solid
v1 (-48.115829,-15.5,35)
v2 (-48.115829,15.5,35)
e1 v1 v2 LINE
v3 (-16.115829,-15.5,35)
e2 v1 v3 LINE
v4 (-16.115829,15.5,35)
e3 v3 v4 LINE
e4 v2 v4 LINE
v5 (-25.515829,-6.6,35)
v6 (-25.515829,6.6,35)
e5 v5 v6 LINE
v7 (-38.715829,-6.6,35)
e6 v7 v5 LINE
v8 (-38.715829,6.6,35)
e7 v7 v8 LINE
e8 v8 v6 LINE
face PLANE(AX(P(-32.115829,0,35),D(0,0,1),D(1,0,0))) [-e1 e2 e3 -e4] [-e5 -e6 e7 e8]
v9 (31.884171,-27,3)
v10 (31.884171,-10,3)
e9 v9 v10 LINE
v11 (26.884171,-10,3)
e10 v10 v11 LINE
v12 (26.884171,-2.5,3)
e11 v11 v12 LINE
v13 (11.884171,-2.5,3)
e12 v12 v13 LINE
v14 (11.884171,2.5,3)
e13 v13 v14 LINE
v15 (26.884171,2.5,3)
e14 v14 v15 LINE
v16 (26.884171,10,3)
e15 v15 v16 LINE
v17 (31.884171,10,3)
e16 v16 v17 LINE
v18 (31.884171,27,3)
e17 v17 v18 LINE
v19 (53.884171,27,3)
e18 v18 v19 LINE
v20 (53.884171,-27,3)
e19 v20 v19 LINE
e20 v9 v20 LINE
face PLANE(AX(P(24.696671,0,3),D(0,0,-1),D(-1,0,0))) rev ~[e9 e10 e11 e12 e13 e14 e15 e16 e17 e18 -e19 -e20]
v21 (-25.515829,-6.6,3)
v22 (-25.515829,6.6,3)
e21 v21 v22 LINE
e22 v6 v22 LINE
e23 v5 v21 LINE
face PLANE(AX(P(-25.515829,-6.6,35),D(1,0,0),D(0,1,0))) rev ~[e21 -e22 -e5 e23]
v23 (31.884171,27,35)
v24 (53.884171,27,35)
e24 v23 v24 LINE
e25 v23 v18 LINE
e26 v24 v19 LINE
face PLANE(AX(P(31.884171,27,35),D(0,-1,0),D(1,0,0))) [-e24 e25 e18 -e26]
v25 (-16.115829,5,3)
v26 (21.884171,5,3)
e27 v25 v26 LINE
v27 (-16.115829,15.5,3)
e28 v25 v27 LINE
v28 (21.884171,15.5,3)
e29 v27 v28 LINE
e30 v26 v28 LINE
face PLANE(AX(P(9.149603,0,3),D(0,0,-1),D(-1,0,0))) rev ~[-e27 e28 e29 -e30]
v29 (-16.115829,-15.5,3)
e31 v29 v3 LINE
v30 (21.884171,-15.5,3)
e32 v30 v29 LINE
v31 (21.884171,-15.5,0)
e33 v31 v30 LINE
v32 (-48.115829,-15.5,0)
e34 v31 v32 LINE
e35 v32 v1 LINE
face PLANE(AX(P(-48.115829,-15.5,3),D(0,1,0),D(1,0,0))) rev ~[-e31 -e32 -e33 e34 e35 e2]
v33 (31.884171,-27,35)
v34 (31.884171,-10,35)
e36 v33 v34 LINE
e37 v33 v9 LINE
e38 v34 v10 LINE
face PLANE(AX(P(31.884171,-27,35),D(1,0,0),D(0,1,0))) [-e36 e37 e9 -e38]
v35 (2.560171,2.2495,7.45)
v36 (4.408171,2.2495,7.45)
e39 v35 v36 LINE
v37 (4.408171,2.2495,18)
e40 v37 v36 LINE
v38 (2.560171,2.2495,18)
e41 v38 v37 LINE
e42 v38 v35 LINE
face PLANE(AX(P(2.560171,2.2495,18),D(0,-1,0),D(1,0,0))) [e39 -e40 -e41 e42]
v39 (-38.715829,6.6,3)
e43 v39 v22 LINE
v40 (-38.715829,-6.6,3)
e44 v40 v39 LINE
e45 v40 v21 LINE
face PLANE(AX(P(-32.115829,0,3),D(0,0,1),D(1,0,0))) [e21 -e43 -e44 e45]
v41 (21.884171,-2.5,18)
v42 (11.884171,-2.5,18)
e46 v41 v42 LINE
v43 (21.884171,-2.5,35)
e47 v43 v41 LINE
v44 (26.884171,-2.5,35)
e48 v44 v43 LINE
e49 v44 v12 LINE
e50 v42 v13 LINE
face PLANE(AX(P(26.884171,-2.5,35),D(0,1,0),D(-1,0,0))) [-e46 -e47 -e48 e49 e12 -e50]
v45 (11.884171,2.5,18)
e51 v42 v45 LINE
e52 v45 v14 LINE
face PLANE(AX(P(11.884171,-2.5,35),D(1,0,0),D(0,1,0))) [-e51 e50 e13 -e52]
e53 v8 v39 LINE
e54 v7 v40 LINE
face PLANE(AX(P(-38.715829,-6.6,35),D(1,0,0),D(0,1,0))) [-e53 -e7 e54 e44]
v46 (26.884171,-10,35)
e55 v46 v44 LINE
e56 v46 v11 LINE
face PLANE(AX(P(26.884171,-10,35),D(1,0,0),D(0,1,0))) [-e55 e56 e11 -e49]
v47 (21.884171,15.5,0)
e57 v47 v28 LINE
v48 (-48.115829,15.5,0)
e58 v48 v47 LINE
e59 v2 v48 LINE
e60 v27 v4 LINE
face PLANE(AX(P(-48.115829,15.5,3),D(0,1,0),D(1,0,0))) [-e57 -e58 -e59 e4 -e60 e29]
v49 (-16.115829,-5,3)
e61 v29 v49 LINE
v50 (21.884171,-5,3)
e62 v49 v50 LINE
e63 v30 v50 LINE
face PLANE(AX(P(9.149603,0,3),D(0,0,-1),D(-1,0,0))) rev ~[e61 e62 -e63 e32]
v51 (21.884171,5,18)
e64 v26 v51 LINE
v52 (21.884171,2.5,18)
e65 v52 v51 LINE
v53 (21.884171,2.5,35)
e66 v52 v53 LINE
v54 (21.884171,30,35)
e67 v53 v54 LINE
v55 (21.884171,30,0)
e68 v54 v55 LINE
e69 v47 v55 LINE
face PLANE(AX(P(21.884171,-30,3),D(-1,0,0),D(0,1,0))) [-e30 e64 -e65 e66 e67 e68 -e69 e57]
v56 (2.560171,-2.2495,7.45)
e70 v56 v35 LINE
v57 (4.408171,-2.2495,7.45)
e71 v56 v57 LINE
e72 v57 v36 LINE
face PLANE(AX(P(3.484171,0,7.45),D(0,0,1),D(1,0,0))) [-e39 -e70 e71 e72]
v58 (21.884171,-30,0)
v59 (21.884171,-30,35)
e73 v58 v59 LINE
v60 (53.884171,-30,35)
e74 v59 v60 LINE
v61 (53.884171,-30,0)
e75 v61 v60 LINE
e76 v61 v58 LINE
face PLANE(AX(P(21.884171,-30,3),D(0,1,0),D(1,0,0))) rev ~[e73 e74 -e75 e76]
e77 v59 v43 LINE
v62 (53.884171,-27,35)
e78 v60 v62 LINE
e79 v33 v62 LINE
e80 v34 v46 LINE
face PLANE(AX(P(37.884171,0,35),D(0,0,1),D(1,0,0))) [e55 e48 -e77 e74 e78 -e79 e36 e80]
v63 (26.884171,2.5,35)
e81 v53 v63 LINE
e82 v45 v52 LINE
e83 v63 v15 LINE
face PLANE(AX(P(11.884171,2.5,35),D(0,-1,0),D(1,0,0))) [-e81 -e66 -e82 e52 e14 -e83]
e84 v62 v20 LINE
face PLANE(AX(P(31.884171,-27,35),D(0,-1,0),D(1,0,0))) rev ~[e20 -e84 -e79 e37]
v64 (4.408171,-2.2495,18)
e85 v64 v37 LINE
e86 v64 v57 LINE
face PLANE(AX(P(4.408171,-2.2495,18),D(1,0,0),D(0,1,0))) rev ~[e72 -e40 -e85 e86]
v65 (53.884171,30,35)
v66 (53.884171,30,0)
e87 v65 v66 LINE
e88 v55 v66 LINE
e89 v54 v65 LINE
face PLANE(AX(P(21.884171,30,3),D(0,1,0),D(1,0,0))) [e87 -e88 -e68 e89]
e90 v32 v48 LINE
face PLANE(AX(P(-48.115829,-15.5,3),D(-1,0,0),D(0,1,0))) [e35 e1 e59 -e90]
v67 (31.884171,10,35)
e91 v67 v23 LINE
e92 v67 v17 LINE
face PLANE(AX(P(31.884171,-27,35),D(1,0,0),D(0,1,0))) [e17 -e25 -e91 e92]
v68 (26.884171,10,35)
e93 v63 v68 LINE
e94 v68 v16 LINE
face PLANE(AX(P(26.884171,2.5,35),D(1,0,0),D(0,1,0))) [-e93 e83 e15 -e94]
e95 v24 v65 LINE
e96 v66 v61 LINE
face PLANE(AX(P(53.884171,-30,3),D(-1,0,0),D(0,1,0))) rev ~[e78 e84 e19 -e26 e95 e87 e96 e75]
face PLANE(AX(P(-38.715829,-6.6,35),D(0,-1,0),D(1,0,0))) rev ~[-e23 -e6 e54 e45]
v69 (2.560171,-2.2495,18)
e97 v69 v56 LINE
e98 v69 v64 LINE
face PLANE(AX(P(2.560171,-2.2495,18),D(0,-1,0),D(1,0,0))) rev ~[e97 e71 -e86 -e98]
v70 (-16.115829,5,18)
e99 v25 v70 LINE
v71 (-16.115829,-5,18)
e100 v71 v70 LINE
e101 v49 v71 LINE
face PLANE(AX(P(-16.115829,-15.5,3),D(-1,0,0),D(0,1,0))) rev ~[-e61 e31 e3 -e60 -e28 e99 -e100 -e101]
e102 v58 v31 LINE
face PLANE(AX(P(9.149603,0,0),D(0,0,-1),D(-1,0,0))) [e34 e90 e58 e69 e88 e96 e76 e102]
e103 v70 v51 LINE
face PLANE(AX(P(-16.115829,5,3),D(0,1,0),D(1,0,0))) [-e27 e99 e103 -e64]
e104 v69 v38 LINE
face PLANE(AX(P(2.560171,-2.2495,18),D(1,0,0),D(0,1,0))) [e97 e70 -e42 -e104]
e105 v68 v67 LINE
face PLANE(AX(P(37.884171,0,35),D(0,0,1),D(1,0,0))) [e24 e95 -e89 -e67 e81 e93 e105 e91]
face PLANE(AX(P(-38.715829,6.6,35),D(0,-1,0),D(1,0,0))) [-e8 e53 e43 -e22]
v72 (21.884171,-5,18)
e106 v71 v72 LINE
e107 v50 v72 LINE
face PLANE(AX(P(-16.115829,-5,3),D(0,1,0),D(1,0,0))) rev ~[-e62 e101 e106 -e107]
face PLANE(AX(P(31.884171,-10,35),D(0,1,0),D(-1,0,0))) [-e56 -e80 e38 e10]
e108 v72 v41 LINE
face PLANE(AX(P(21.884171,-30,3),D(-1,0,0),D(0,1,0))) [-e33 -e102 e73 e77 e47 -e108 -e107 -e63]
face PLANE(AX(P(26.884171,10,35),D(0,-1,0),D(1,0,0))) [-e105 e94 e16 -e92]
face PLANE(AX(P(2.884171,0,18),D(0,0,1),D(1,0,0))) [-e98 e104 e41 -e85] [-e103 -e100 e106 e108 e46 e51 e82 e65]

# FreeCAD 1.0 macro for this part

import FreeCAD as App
import Part
import Sketcher

doc = App.newDocument("Part")
params = doc.addObject("Spreadsheet::Sheet", "Params")
for row, (alias, value) in enumerate([
    ("sketch1_width", "70 mm"),
    ("sketch1_width2", "32 mm"),
    ("sketch1_height", "31 mm"),
    ("sketch1_height2", "60 mm"),
    ("pad1_length", "3 mm"),
    ("sketch2_width", "32 mm"),
    ("sketch2_height", "60 mm"),
    ("pad2_length", "32 mm"),
    ("sketch3_width", "22 mm"),
    ("sketch3_height", "54 mm"),
    ("pocket1_length", "32 mm"),
    ("sketch4_width", "38 mm"),
    ("sketch4_height", "10 mm"),
    ("pad3_length", "15 mm"),
    ("sketch5_width", "5 mm"),
    ("sketch5_width2", "15 mm"),
    ("sketch5_height", "20 mm"),
    ("pocket2_length", "32 mm"),
    ("sketch6_width", "32 mm"),
    ("sketch6_height", "31 mm"),
    ("pad4_length", "32 mm"),
    ("sketch7_width", "13.2 mm"),
    ("pocket3_length", "32 mm"),
    ("pocket4_length", "10.55 mm"),
], start=1):
    params.set(f"A{row}", alias)
    params.set(f"B{row}", "=" + value)
    params.setAlias(f"B{row}", alias)

body = doc.addObject("PartDesign::Body", "Body")

sketch1 = doc.addObject("Sketcher::SketchObject", "Sketch")
body.addObject(sketch1)
sketch1.AttachmentSupport = (doc.XY_Plane, [""])
sketch1.MapMode = "FlatFace"
sketch1.addGeometry([
    Part.LineSegment(App.Vector(22, 16, 0), App.Vector(-48, 16, 0)),
    Part.LineSegment(App.Vector(-48, 16, 0), App.Vector(-48, -16, 0)),
    Part.LineSegment(App.Vector(-48, -16, 0), App.Vector(22, -16, 0)),
    Part.LineSegment(App.Vector(22, -16, 0), App.Vector(22, -30, 0)),
    Part.LineSegment(App.Vector(22, -30, 0), App.Vector(54, -30, 0)),
    Part.LineSegment(App.Vector(54, -30, 0), App.Vector(54, 30, 0)),
    Part.LineSegment(App.Vector(54, 30, 0), App.Vector(22, 30, 0)),
    Part.LineSegment(App.Vector(22, 30, 0), App.Vector(22, 16, 0)),
], False)
sketch1.addConstraint([
    Sketcher.Constraint("Coincident", 0, 2, 1, 1),
    Sketcher.Constraint("Coincident", 1, 2, 2, 1),
    Sketcher.Constraint("Coincident", 2, 2, 3, 1),
    Sketcher.Constraint("Coincident", 3, 2, 4, 1),
    Sketcher.Constraint("Coincident", 4, 2, 5, 1),
    Sketcher.Constraint("Coincident", 5, 2, 6, 1),
    Sketcher.Constraint("Coincident", 6, 2, 7, 1),
    Sketcher.Constraint("Coincident", 7, 2, 0, 1),
    Sketcher.Constraint("Horizontal", 0),
    Sketcher.Constraint("Vertical", 1),
    Sketcher.Constraint("Horizontal", 2),
    Sketcher.Constraint("Vertical", 3),
    Sketcher.Constraint("Horizontal", 4),
    Sketcher.Constraint("Vertical", 5),
    Sketcher.Constraint("Horizontal", 6),
    Sketcher.Constraint("Vertical", 7),
    Sketcher.Constraint("Symmetric", 3, 2, 6, 2, -1),
    Sketcher.Constraint("Equal", 3, 7),
    Sketcher.Constraint("DistanceX", 0, 2, 0, 1, 70.0),
    Sketcher.Constraint("DistanceX", 4, 1, 4, 2, 32.0),
    Sketcher.Constraint("DistanceY", 1, 2, 1, 1, 31.0),
    Sketcher.Constraint("DistanceY", 5, 1, 5, 2, 60.0),
    Sketcher.Constraint("DistanceX", 0, 2, -1, 1, 48.115829),
])
sketch1.setExpression("Constraints[18]", "Params.sketch1_width")
sketch1.setExpression("Constraints[19]", "Params.sketch1_width2")
sketch1.setExpression("Constraints[20]", "Params.sketch1_height")
sketch1.setExpression("Constraints[21]", "Params.sketch1_height2")
pad1 = doc.addObject("PartDesign::Pad", "Pad")
body.addObject(pad1)
pad1.Profile = sketch1
pad1.setExpression("Length", "Params.pad1_length")

sketch2 = doc.addObject("Sketcher::SketchObject", "Sketch001")
body.addObject(sketch2)
sketch2.AttachmentSupport = (doc.XY_Plane, [""])
sketch2.MapMode = "FlatFace"
sketch2.AttachmentOffset = App.Placement(App.Vector(0, 0, 3), App.Rotation())
sketch2.addGeometry([
    Part.LineSegment(App.Vector(22, 30, 0), App.Vector(22, -30, 0)),
    Part.LineSegment(App.Vector(22, -30, 0), App.Vector(54, -30, 0)),
    Part.LineSegment(App.Vector(54, -30, 0), App.Vector(54, 30, 0)),
    Part.LineSegment(App.Vector(54, 30, 0), App.Vector(22, 30, 0)),
], False)
sketch2.addConstraint([
    Sketcher.Constraint("Coincident", 0, 2, 1, 1),
    Sketcher.Constraint("Coincident", 1, 2, 2, 1),
    Sketcher.Constraint("Coincident", 2, 2, 3, 1),
    Sketcher.Constraint("Coincident", 3, 2, 0, 1),
    Sketcher.Constraint("Vertical", 0),
    Sketcher.Constraint("Horizontal", 1),
    Sketcher.Constraint("Vertical", 2),
    Sketcher.Constraint("Horizontal", 3),
    Sketcher.Constraint("DistanceX", 1, 1, 1, 2, 32.0),
    Sketcher.Constraint("DistanceY", 0, 2, 0, 1, 60.0),
    Sketcher.Constraint("DistanceY", 0, 2, -1, 1, 30.0),
    Sketcher.Constraint("DistanceX", -1, 1, 0, 2, 21.884171),
])
sketch2.setExpression("Constraints[8]", "Params.sketch2_width")
sketch2.setExpression("Constraints[9]", "Params.sketch2_height")
pad2 = doc.addObject("PartDesign::Pad", "Pad001")
body.addObject(pad2)
pad2.Profile = sketch2
pad2.setExpression("Length", "Params.pad2_length")

sketch3 = doc.addObject("Sketcher::SketchObject", "Sketch002")
body.addObject(sketch3)
sketch3.AttachmentSupport = (doc.XY_Plane, [""])
sketch3.MapMode = "FlatFace"
sketch3.AttachmentOffset = App.Placement(App.Vector(0, 0, 35), App.Rotation())
sketch3.addGeometry([
    Part.LineSegment(App.Vector(32, 27, 0), App.Vector(32, -27, 0)),
    Part.LineSegment(App.Vector(32, -27, 0), App.Vector(54, -27, 0)),
    Part.LineSegment(App.Vector(54, -27, 0), App.Vector(54, 27, 0)),
    Part.LineSegment(App.Vector(54, 27, 0), App.Vector(32, 27, 0)),
], False)
sketch3.addConstraint([
    Sketcher.Constraint("Coincident", 0, 2, 1, 1),
    Sketcher.Constraint("Coincident", 1, 2, 2, 1),
    Sketcher.Constraint("Coincident", 2, 2, 3, 1),
    Sketcher.Constraint("Coincident", 3, 2, 0, 1),
    Sketcher.Constraint("Vertical", 0),
    Sketcher.Constraint("Horizontal", 1),
    Sketcher.Constraint("Vertical", 2),
    Sketcher.Constraint("Horizontal", 3),
    Sketcher.Constraint("DistanceX", 1, 1, 1, 2, 22.0),
    Sketcher.Constraint("DistanceY", 0, 2, 0, 1, 54.0),
    Sketcher.Constraint("DistanceY", 0, 2, -1, 1, 27.0),
    Sketcher.Constraint("DistanceX", -1, 1, 0, 2, 31.884171),
])
sketch3.setExpression("Constraints[8]", "Params.sketch3_width")
sketch3.setExpression("Constraints[9]", "Params.sketch3_height")
pocket1 = doc.addObject("PartDesign::Pocket", "Pocket")
body.addObject(pocket1)
pocket1.Profile = sketch3
pocket1.setExpression("Length", "Params.pocket1_length")

sketch4 = doc.addObject("Sketcher::SketchObject", "Sketch003")
body.addObject(sketch4)
sketch4.AttachmentSupport = (doc.XY_Plane, [""])
sketch4.MapMode = "FlatFace"
sketch4.AttachmentOffset = App.Placement(App.Vector(0, 0, 3), App.Rotation())
sketch4.addGeometry([
    Part.LineSegment(App.Vector(-16, 5, 0), App.Vector(-16, -5, 0)),
    Part.LineSegment(App.Vector(-16, -5, 0), App.Vector(22, -5, 0)),
    Part.LineSegment(App.Vector(22, -5, 0), App.Vector(22, 5, 0)),
    Part.LineSegment(App.Vector(22, 5, 0), App.Vector(-16, 5, 0)),
], False)
sketch4.addConstraint([
    Sketcher.Constraint("Coincident", 0, 2, 1, 1),
    Sketcher.Constraint("Coincident", 1, 2, 2, 1),
    Sketcher.Constraint("Coincident", 2, 2, 3, 1),
    Sketcher.Constraint("Coincident", 3, 2, 0, 1),
    Sketcher.Constraint("Vertical", 0),
    Sketcher.Constraint("Horizontal", 1),
    Sketcher.Constraint("Vertical", 2),
    Sketcher.Constraint("Horizontal", 3),
    Sketcher.Constraint("DistanceX", 1, 1, 1, 2, 38.0),
    Sketcher.Constraint("DistanceY", 0, 2, 0, 1, 10.0),
    Sketcher.Constraint("DistanceY", 0, 2, -1, 1, 5.0),
    Sketcher.Constraint("DistanceX", 0, 2, -1, 1, 16.115829),
])
sketch4.setExpression("Constraints[8]", "Params.sketch4_width")
sketch4.setExpression("Constraints[9]", "Params.sketch4_height")
pad3 = doc.addObject("PartDesign::Pad", "Pad002")
body.addObject(pad3)
pad3.Profile = sketch4
pad3.setExpression("Length", "Params.pad3_length")

sketch5 = doc.addObject("Sketcher::SketchObject", "Sketch004")
body.addObject(sketch5)
sketch5.AttachmentSupport = (doc.XY_Plane, [""])
sketch5.MapMode = "FlatFace"
sketch5.AttachmentOffset = App.Placement(App.Vector(0, 0, 35), App.Rotation())
sketch5.addGeometry([
    Part.LineSegment(App.Vector(32, -10, 0), App.Vector(32, 10, 0)),
    Part.LineSegment(App.Vector(32, 10, 0), App.Vector(27, 10, 0)),
    Part.LineSegment(App.Vector(27, 10, 0), App.Vector(27, 2, 0)),
    Part.LineSegment(App.Vector(27, 2, 0), App.Vector(12, 2, 0)),
    Part.LineSegment(App.Vector(12, 2, 0), App.Vector(12, -2, 0)),
    Part.LineSegment(App.Vector(12, -2, 0), App.Vector(27, -2, 0)),
    Part.LineSegment(App.Vector(27, -2, 0), App.Vector(27, -10, 0)),
    Part.LineSegment(App.Vector(27, -10, 0), App.Vector(32, -10, 0)),
], False)
sketch5.addConstraint([
    Sketcher.Constraint("Coincident", 0, 2, 1, 1),
    Sketcher.Constraint("Coincident", 1, 2, 2, 1),
    Sketcher.Constraint("Coincident", 2, 2, 3, 1),
    Sketcher.Constraint("Coincident", 3, 2, 4, 1),
    Sketcher.Constraint("Coincident", 4, 2, 5, 1),
    Sketcher.Constraint("Coincident", 5, 2, 6, 1),
    Sketcher.Constraint("Coincident", 6, 2, 7, 1),
    Sketcher.Constraint("Coincident", 7, 2, 0, 1),
    Sketcher.Constraint("Vertical", 0),
    Sketcher.Constraint("Horizontal", 1),
    Sketcher.Constraint("Vertical", 2),
    Sketcher.Constraint("Horizontal", 3),
    Sketcher.Constraint("Vertical", 4),
    Sketcher.Constraint("Horizontal", 5),
    Sketcher.Constraint("Vertical", 6),
    Sketcher.Constraint("Horizontal", 7),
    Sketcher.Constraint("Symmetric", 2, 2, 5, 2, -1),
    Sketcher.Constraint("Equal", 7, 4),
    Sketcher.Constraint("Equal", 2, 6),
    Sketcher.Constraint("DistanceX", 1, 2, 1, 1, 5.0),
    Sketcher.Constraint("DistanceX", 3, 2, 3, 1, 15.0),
    Sketcher.Constraint("DistanceY", 0, 1, 0, 2, 20.0),
    Sketcher.Constraint("DistanceX", -1, 1, 0, 2, 31.884171),
])
sketch5.setExpression("Constraints[19]", "Params.sketch5_width")
sketch5.setExpression("Constraints[20]", "Params.sketch5_width2")
sketch5.setExpression("Constraints[21]", "Params.sketch5_height")
pocket2 = doc.addObject("PartDesign::Pocket", "Pocket001")
body.addObject(pocket2)
pocket2.Profile = sketch5
pocket2.setExpression("Length", "Params.pocket2_length")

sketch6 = doc.addObject("Sketcher::SketchObject", "Sketch005")
body.addObject(sketch6)
sketch6.AttachmentSupport = (doc.XY_Plane, [""])
sketch6.MapMode = "FlatFace"
sketch6.AttachmentOffset = App.Placement(App.Vector(0, 0, 3), App.Rotation())
sketch6.addGeometry([
    Part.LineSegment(App.Vector(-48, 16, 0), App.Vector(-48, -16, 0)),
    Part.LineSegment(App.Vector(-48, -16, 0), App.Vector(-16, -16, 0)),
    Part.LineSegment(App.Vector(-16, -16, 0), App.Vector(-16, 16, 0)),
    Part.LineSegment(App.Vector(-16, 16, 0), App.Vector(-48, 16, 0)),
], False)
sketch6.addConstraint([
    Sketcher.Constraint("Coincident", 0, 2, 1, 1),
    Sketcher.Constraint("Coincident", 1, 2, 2, 1),
    Sketcher.Constraint("Coincident", 2, 2, 3, 1),
    Sketcher.Constraint("Coincident", 3, 2, 0, 1),
    Sketcher.Constraint("Vertical", 0),
    Sketcher.Constraint("Horizontal", 1),
    Sketcher.Constraint("Vertical", 2),
    Sketcher.Constraint("Horizontal", 3),
    Sketcher.Constraint("DistanceX", 1, 1, 1, 2, 32.0),
    Sketcher.Constraint("DistanceY", 0, 2, 0, 1, 31.0),
    Sketcher.Constraint("DistanceY", 0, 2, -1, 1, 15.5),
    Sketcher.Constraint("DistanceX", 0, 2, -1, 1, 48.115829),
])
sketch6.setExpression("Constraints[8]", "Params.sketch6_width")
sketch6.setExpression("Constraints[9]", "Params.sketch6_height")
pad4 = doc.addObject("PartDesign::Pad", "Pad003")
body.addObject(pad4)
pad4.Profile = sketch6
pad4.setExpression("Length", "Params.pad4_length")

sketch7 = doc.addObject("Sketcher::SketchObject", "Sketch006")
body.addObject(sketch7)
sketch7.AttachmentSupport = (doc.XY_Plane, [""])
sketch7.MapMode = "FlatFace"
sketch7.AttachmentOffset = App.Placement(App.Vector(0, 0, 35), App.Rotation())
sketch7.addGeometry([
    Part.LineSegment(App.Vector(-39, 7, 0), App.Vector(-39, -7, 0)),
    Part.LineSegment(App.Vector(-39, -7, 0), App.Vector(-26, -7, 0)),
    Part.LineSegment(App.Vector(-26, -7, 0), App.Vector(-26, 7, 0)),
    Part.LineSegment(App.Vector(-26, 7, 0), App.Vector(-39, 7, 0)),
], False)
sketch7.addConstraint([
    Sketcher.Constraint("Coincident", 0, 2, 1, 1),
    Sketcher.Constraint("Coincident", 1, 2, 2, 1),
    Sketcher.Constraint("Coincident", 2, 2, 3, 1),
    Sketcher.Constraint("Coincident", 3, 2, 0, 1),
    Sketcher.Constraint("Vertical", 0),
    Sketcher.Constraint("Horizontal", 1),
    Sketcher.Constraint("Vertical", 2),
    Sketcher.Constraint("Horizontal", 3),
    Sketcher.Constraint("Equal", 3, 0),
    Sketcher.Constraint("DistanceX", 1, 1, 1, 2, 13.2),
    Sketcher.Constraint("DistanceY", 0, 2, -1, 1, 6.6),
    Sketcher.Constraint("DistanceX", 0, 2, -1, 1, 38.715829),
])
sketch7.setExpression("Constraints[9]", "Params.sketch7_width")
pocket3 = doc.addObject("PartDesign::Pocket", "Pocket002")
body.addObject(pocket3)
pocket3.Profile = sketch7
pocket3.setExpression("Length", "Params.pocket3_length")

sketch8 = doc.addObject("Sketcher::SketchObject", "Sketch007")
body.addObject(sketch8)
sketch8.AttachmentSupport = (doc.XY_Plane, [""])
sketch8.MapMode = "FlatFace"
sketch8.AttachmentOffset = App.Placement(App.Vector(0, 0, 18), App.Rotation())
sketch8.addGeometry([
    Part.LineSegment(App.Vector(2.6, 2.2, 0), App.Vector(2.6, -2.2, 0)),
    Part.LineSegment(App.Vector(2.6, -2.2, 0), App.Vector(4.4, -2.2, 0)),
    Part.LineSegment(App.Vector(4.4, -2.2, 0), App.Vector(4.4, 2.2, 0)),
    Part.LineSegment(App.Vector(4.4, 2.2, 0), App.Vector(2.6, 2.2, 0)),
], False)
sketch8.addConstraint([
    Sketcher.Constraint("Coincident", 0, 2, 1, 1),
    Sketcher.Constraint("Coincident", 1, 2, 2, 1),
    Sketcher.Constraint("Coincident", 2, 2, 3, 1),
    Sketcher.Constraint("Coincident", 3, 2, 0, 1),
    Sketcher.Constraint("Vertical", 0),
    Sketcher.Constraint("Horizontal", 1),
    Sketcher.Constraint("Vertical", 2),
    Sketcher.Constraint("Horizontal", 3),
    Sketcher.Constraint("DistanceX", 1, 1, 1, 2, 1.848),
    Sketcher.Constraint("DistanceY", 0, 2, 0, 1, 4.499),
    Sketcher.Constraint("DistanceY", 0, 2, -1, 1, 2.2495),
    Sketcher.Constraint("DistanceX", -1, 1, 0, 2, 2.560171),
])
pocket4 = doc.addObject("PartDesign::Pocket", "Pocket003")
body.addObject(pocket4)
pocket4.Profile = sketch8
pocket4.setExpression("Length", "Params.pocket4_length")

doc.recompute()
